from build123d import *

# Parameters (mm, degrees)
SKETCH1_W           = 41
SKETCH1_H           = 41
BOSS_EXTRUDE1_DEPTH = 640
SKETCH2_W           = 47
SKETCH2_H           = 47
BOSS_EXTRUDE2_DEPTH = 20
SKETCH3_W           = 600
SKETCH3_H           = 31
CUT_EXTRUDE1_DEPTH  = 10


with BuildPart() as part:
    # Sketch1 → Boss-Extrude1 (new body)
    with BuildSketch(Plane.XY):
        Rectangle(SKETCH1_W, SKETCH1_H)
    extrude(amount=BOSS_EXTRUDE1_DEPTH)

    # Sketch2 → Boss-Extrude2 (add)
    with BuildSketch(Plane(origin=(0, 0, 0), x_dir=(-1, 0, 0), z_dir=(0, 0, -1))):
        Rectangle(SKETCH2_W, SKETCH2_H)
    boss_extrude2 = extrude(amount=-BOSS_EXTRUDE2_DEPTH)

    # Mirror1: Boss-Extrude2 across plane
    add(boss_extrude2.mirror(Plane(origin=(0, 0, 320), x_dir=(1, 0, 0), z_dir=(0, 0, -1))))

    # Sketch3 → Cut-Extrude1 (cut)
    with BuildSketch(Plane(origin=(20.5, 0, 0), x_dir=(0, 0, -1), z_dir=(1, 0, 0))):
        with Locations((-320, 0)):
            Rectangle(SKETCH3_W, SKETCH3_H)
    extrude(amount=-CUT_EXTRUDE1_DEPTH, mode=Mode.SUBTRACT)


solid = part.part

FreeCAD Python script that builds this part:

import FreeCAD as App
import Part
import Sketcher
from FreeCAD import Vector

doc = App.newDocument("Part")
params = doc.addObject("Spreadsheet::Sheet", "Params")
for row, (alias, value) in enumerate([
    ("sketch1_width", "41 mm"),
    ("pad1_length", "640 mm"),
    ("sketch2_width", "47 mm"),
    ("pad2_length", "20 mm"),
    ("sketch3_width", "31 mm"),
    ("sketch3_height", "600 mm"),
    ("pocket1_length", "10 mm"),
], start=1):
    params.set(f"A{row}", alias)
    params.set(f"B{row}", "=" + value)
    params.setAlias(f"B{row}", alias)

body = doc.addObject("PartDesign::Body", "Body")

# Sketch on XY plane
sketch1 = doc.addObject("Sketcher::SketchObject", "Sketch")
body.addObject(sketch1)
sketch1.AttachmentSupport = (doc.XY_Plane, [""])
sketch1.MapMode = "FlatFace"
sketch1.addGeometry([
    Part.LineSegment(Vector(-20, 20, 0), Vector(-20, -20, 0)),
    Part.LineSegment(Vector(-20, -20, 0), Vector(20, -20, 0)),
    Part.LineSegment(Vector(20, -20, 0), Vector(20, 20, 0)),
    Part.LineSegment(Vector(20, 20, 0), Vector(-20, 20, 0)),
], False)
sketch1.addConstraint([
    Sketcher.Constraint("Coincident", 0, 2, 1, 1),
    Sketcher.Constraint("Coincident", 1, 2, 2, 1),
    Sketcher.Constraint("Coincident", 2, 2, 3, 1),
    Sketcher.Constraint("Coincident", 3, 2, 0, 1),
    Sketcher.Constraint("Vertical", 0),
    Sketcher.Constraint("Horizontal", 1),
    Sketcher.Constraint("Vertical", 2),
    Sketcher.Constraint("Horizontal", 3),
    Sketcher.Constraint("Symmetric", 0, 2, 2, 2, -1, 1),
    Sketcher.Constraint("Equal", 3, 0),
    Sketcher.Constraint("DistanceX", 1, 1, 1, 2, 41.0),
])
sketch1.setExpression("Constraints[10]", "Params.sketch1_width")
pad1 = doc.addObject("PartDesign::Pad", "Pad")
body.addObject(pad1)
pad1.Profile = sketch1
pad1.setExpression("Length", "Params.pad1_length")

# Sketch on XY plane
sketch2 = doc.addObject("Sketcher::SketchObject", "Sketch001")
body.addObject(sketch2)
sketch2.AttachmentSupport = (doc.XY_Plane, [""])
sketch2.MapMode = "FlatFace"
sketch2.addGeometry([
    Part.LineSegment(Vector(24, 24, 0), Vector(24, -24, 0)),
    Part.LineSegment(Vector(24, -24, 0), Vector(-24, -24, 0)),
    Part.LineSegment(Vector(-24, -24, 0), Vector(-24, 24, 0)),
    Part.LineSegment(Vector(-24, 24, 0), Vector(24, 24, 0)),
], False)
sketch2.addConstraint([
    Sketcher.Constraint("Coincident", 0, 2, 1, 1),
    Sketcher.Constraint("Coincident", 1, 2, 2, 1),
    Sketcher.Constraint("Coincident", 2, 2, 3, 1),
    Sketcher.Constraint("Coincident", 3, 2, 0, 1),
    Sketcher.Constraint("Vertical", 0),
    Sketcher.Constraint("Horizontal", 1),
    Sketcher.Constraint("Vertical", 2),
    Sketcher.Constraint("Horizontal", 3),
    Sketcher.Constraint("Symmetric", 0, 2, 2, 2, -1, 1),
    Sketcher.Constraint("Equal", 3, 0),
    Sketcher.Constraint("DistanceX", 1, 2, 1, 1, 47.0),
])
sketch2.setExpression("Constraints[10]", "Params.sketch2_width")
pad2 = doc.addObject("PartDesign::Pad", "Pad001")
body.addObject(pad2)
pad2.Profile = sketch2
pad2.setExpression("Length", "Params.pad2_length")
doc.recompute()

datumplane = doc.addObject("PartDesign::Plane", "DatumPlane")
body.addObject(datumplane)
datumplane.AttachmentSupport = (doc.XY_Plane, [""])
datumplane.MapMode = "FlatFace"
datumplane.AttachmentOffset = App.Placement(Vector(0, 0, 320), App.Rotation())
mirrored = doc.addObject("PartDesign::Mirrored", "Mirrored")
body.addObject(mirrored)
mirrored.Originals = [pad2]
mirrored.MirrorPlane = (datumplane, [""])
body.Tip = mirrored

# Sketch on YZ plane
sketch3 = doc.addObject("Sketcher::SketchObject", "Sketch002")
body.addObject(sketch3)
sketch3.AttachmentSupport = (doc.YZ_Plane, [""])
sketch3.MapMode = "FlatFace"
sketch3.AttachmentOffset = App.Placement(Vector(0, 0, 20.5), App.Rotation())
sketch3.addGeometry([
    Part.LineSegment(Vector(16, 620, 0), Vector(-16, 620, 0)),
    Part.LineSegment(Vector(-16, 620, 0), Vector(-16, 20, 0)),
    Part.LineSegment(Vector(-16, 20, 0), Vector(16, 20, 0)),
    Part.LineSegment(Vector(16, 20, 0), Vector(16, 620, 0)),
], False)
sketch3.addConstraint([
    Sketcher.Constraint("Coincident", 0, 2, 1, 1),
    Sketcher.Constraint("Coincident", 1, 2, 2, 1),
    Sketcher.Constraint("Coincident", 2, 2, 3, 1),
    Sketcher.Constraint("Coincident", 3, 2, 0, 1),
    Sketcher.Constraint("Horizontal", 0),
    Sketcher.Constraint("Vertical", 1),
    Sketcher.Constraint("Horizontal", 2),
    Sketcher.Constraint("Vertical", 3),
    Sketcher.Constraint("DistanceX", 0, 2, 0, 1, 31.0),
    Sketcher.Constraint("DistanceY", 1, 2, 1, 1, 600.0),
    Sketcher.Constraint("DistanceY", -1, 1, 0, 2, 620.0),
    Sketcher.Constraint("DistanceX", 0, 2, -1, 1, 15.5),
])
sketch3.setExpression("Constraints[8]", "Params.sketch3_width")
sketch3.setExpression("Constraints[9]", "Params.sketch3_height")
pocket1 = doc.addObject("PartDesign::Pocket", "Pocket")
body.addObject(pocket1)
pocket1.Profile = sketch3
pocket1.setExpression("Length", "Params.pocket1_length")

doc.recompute()
